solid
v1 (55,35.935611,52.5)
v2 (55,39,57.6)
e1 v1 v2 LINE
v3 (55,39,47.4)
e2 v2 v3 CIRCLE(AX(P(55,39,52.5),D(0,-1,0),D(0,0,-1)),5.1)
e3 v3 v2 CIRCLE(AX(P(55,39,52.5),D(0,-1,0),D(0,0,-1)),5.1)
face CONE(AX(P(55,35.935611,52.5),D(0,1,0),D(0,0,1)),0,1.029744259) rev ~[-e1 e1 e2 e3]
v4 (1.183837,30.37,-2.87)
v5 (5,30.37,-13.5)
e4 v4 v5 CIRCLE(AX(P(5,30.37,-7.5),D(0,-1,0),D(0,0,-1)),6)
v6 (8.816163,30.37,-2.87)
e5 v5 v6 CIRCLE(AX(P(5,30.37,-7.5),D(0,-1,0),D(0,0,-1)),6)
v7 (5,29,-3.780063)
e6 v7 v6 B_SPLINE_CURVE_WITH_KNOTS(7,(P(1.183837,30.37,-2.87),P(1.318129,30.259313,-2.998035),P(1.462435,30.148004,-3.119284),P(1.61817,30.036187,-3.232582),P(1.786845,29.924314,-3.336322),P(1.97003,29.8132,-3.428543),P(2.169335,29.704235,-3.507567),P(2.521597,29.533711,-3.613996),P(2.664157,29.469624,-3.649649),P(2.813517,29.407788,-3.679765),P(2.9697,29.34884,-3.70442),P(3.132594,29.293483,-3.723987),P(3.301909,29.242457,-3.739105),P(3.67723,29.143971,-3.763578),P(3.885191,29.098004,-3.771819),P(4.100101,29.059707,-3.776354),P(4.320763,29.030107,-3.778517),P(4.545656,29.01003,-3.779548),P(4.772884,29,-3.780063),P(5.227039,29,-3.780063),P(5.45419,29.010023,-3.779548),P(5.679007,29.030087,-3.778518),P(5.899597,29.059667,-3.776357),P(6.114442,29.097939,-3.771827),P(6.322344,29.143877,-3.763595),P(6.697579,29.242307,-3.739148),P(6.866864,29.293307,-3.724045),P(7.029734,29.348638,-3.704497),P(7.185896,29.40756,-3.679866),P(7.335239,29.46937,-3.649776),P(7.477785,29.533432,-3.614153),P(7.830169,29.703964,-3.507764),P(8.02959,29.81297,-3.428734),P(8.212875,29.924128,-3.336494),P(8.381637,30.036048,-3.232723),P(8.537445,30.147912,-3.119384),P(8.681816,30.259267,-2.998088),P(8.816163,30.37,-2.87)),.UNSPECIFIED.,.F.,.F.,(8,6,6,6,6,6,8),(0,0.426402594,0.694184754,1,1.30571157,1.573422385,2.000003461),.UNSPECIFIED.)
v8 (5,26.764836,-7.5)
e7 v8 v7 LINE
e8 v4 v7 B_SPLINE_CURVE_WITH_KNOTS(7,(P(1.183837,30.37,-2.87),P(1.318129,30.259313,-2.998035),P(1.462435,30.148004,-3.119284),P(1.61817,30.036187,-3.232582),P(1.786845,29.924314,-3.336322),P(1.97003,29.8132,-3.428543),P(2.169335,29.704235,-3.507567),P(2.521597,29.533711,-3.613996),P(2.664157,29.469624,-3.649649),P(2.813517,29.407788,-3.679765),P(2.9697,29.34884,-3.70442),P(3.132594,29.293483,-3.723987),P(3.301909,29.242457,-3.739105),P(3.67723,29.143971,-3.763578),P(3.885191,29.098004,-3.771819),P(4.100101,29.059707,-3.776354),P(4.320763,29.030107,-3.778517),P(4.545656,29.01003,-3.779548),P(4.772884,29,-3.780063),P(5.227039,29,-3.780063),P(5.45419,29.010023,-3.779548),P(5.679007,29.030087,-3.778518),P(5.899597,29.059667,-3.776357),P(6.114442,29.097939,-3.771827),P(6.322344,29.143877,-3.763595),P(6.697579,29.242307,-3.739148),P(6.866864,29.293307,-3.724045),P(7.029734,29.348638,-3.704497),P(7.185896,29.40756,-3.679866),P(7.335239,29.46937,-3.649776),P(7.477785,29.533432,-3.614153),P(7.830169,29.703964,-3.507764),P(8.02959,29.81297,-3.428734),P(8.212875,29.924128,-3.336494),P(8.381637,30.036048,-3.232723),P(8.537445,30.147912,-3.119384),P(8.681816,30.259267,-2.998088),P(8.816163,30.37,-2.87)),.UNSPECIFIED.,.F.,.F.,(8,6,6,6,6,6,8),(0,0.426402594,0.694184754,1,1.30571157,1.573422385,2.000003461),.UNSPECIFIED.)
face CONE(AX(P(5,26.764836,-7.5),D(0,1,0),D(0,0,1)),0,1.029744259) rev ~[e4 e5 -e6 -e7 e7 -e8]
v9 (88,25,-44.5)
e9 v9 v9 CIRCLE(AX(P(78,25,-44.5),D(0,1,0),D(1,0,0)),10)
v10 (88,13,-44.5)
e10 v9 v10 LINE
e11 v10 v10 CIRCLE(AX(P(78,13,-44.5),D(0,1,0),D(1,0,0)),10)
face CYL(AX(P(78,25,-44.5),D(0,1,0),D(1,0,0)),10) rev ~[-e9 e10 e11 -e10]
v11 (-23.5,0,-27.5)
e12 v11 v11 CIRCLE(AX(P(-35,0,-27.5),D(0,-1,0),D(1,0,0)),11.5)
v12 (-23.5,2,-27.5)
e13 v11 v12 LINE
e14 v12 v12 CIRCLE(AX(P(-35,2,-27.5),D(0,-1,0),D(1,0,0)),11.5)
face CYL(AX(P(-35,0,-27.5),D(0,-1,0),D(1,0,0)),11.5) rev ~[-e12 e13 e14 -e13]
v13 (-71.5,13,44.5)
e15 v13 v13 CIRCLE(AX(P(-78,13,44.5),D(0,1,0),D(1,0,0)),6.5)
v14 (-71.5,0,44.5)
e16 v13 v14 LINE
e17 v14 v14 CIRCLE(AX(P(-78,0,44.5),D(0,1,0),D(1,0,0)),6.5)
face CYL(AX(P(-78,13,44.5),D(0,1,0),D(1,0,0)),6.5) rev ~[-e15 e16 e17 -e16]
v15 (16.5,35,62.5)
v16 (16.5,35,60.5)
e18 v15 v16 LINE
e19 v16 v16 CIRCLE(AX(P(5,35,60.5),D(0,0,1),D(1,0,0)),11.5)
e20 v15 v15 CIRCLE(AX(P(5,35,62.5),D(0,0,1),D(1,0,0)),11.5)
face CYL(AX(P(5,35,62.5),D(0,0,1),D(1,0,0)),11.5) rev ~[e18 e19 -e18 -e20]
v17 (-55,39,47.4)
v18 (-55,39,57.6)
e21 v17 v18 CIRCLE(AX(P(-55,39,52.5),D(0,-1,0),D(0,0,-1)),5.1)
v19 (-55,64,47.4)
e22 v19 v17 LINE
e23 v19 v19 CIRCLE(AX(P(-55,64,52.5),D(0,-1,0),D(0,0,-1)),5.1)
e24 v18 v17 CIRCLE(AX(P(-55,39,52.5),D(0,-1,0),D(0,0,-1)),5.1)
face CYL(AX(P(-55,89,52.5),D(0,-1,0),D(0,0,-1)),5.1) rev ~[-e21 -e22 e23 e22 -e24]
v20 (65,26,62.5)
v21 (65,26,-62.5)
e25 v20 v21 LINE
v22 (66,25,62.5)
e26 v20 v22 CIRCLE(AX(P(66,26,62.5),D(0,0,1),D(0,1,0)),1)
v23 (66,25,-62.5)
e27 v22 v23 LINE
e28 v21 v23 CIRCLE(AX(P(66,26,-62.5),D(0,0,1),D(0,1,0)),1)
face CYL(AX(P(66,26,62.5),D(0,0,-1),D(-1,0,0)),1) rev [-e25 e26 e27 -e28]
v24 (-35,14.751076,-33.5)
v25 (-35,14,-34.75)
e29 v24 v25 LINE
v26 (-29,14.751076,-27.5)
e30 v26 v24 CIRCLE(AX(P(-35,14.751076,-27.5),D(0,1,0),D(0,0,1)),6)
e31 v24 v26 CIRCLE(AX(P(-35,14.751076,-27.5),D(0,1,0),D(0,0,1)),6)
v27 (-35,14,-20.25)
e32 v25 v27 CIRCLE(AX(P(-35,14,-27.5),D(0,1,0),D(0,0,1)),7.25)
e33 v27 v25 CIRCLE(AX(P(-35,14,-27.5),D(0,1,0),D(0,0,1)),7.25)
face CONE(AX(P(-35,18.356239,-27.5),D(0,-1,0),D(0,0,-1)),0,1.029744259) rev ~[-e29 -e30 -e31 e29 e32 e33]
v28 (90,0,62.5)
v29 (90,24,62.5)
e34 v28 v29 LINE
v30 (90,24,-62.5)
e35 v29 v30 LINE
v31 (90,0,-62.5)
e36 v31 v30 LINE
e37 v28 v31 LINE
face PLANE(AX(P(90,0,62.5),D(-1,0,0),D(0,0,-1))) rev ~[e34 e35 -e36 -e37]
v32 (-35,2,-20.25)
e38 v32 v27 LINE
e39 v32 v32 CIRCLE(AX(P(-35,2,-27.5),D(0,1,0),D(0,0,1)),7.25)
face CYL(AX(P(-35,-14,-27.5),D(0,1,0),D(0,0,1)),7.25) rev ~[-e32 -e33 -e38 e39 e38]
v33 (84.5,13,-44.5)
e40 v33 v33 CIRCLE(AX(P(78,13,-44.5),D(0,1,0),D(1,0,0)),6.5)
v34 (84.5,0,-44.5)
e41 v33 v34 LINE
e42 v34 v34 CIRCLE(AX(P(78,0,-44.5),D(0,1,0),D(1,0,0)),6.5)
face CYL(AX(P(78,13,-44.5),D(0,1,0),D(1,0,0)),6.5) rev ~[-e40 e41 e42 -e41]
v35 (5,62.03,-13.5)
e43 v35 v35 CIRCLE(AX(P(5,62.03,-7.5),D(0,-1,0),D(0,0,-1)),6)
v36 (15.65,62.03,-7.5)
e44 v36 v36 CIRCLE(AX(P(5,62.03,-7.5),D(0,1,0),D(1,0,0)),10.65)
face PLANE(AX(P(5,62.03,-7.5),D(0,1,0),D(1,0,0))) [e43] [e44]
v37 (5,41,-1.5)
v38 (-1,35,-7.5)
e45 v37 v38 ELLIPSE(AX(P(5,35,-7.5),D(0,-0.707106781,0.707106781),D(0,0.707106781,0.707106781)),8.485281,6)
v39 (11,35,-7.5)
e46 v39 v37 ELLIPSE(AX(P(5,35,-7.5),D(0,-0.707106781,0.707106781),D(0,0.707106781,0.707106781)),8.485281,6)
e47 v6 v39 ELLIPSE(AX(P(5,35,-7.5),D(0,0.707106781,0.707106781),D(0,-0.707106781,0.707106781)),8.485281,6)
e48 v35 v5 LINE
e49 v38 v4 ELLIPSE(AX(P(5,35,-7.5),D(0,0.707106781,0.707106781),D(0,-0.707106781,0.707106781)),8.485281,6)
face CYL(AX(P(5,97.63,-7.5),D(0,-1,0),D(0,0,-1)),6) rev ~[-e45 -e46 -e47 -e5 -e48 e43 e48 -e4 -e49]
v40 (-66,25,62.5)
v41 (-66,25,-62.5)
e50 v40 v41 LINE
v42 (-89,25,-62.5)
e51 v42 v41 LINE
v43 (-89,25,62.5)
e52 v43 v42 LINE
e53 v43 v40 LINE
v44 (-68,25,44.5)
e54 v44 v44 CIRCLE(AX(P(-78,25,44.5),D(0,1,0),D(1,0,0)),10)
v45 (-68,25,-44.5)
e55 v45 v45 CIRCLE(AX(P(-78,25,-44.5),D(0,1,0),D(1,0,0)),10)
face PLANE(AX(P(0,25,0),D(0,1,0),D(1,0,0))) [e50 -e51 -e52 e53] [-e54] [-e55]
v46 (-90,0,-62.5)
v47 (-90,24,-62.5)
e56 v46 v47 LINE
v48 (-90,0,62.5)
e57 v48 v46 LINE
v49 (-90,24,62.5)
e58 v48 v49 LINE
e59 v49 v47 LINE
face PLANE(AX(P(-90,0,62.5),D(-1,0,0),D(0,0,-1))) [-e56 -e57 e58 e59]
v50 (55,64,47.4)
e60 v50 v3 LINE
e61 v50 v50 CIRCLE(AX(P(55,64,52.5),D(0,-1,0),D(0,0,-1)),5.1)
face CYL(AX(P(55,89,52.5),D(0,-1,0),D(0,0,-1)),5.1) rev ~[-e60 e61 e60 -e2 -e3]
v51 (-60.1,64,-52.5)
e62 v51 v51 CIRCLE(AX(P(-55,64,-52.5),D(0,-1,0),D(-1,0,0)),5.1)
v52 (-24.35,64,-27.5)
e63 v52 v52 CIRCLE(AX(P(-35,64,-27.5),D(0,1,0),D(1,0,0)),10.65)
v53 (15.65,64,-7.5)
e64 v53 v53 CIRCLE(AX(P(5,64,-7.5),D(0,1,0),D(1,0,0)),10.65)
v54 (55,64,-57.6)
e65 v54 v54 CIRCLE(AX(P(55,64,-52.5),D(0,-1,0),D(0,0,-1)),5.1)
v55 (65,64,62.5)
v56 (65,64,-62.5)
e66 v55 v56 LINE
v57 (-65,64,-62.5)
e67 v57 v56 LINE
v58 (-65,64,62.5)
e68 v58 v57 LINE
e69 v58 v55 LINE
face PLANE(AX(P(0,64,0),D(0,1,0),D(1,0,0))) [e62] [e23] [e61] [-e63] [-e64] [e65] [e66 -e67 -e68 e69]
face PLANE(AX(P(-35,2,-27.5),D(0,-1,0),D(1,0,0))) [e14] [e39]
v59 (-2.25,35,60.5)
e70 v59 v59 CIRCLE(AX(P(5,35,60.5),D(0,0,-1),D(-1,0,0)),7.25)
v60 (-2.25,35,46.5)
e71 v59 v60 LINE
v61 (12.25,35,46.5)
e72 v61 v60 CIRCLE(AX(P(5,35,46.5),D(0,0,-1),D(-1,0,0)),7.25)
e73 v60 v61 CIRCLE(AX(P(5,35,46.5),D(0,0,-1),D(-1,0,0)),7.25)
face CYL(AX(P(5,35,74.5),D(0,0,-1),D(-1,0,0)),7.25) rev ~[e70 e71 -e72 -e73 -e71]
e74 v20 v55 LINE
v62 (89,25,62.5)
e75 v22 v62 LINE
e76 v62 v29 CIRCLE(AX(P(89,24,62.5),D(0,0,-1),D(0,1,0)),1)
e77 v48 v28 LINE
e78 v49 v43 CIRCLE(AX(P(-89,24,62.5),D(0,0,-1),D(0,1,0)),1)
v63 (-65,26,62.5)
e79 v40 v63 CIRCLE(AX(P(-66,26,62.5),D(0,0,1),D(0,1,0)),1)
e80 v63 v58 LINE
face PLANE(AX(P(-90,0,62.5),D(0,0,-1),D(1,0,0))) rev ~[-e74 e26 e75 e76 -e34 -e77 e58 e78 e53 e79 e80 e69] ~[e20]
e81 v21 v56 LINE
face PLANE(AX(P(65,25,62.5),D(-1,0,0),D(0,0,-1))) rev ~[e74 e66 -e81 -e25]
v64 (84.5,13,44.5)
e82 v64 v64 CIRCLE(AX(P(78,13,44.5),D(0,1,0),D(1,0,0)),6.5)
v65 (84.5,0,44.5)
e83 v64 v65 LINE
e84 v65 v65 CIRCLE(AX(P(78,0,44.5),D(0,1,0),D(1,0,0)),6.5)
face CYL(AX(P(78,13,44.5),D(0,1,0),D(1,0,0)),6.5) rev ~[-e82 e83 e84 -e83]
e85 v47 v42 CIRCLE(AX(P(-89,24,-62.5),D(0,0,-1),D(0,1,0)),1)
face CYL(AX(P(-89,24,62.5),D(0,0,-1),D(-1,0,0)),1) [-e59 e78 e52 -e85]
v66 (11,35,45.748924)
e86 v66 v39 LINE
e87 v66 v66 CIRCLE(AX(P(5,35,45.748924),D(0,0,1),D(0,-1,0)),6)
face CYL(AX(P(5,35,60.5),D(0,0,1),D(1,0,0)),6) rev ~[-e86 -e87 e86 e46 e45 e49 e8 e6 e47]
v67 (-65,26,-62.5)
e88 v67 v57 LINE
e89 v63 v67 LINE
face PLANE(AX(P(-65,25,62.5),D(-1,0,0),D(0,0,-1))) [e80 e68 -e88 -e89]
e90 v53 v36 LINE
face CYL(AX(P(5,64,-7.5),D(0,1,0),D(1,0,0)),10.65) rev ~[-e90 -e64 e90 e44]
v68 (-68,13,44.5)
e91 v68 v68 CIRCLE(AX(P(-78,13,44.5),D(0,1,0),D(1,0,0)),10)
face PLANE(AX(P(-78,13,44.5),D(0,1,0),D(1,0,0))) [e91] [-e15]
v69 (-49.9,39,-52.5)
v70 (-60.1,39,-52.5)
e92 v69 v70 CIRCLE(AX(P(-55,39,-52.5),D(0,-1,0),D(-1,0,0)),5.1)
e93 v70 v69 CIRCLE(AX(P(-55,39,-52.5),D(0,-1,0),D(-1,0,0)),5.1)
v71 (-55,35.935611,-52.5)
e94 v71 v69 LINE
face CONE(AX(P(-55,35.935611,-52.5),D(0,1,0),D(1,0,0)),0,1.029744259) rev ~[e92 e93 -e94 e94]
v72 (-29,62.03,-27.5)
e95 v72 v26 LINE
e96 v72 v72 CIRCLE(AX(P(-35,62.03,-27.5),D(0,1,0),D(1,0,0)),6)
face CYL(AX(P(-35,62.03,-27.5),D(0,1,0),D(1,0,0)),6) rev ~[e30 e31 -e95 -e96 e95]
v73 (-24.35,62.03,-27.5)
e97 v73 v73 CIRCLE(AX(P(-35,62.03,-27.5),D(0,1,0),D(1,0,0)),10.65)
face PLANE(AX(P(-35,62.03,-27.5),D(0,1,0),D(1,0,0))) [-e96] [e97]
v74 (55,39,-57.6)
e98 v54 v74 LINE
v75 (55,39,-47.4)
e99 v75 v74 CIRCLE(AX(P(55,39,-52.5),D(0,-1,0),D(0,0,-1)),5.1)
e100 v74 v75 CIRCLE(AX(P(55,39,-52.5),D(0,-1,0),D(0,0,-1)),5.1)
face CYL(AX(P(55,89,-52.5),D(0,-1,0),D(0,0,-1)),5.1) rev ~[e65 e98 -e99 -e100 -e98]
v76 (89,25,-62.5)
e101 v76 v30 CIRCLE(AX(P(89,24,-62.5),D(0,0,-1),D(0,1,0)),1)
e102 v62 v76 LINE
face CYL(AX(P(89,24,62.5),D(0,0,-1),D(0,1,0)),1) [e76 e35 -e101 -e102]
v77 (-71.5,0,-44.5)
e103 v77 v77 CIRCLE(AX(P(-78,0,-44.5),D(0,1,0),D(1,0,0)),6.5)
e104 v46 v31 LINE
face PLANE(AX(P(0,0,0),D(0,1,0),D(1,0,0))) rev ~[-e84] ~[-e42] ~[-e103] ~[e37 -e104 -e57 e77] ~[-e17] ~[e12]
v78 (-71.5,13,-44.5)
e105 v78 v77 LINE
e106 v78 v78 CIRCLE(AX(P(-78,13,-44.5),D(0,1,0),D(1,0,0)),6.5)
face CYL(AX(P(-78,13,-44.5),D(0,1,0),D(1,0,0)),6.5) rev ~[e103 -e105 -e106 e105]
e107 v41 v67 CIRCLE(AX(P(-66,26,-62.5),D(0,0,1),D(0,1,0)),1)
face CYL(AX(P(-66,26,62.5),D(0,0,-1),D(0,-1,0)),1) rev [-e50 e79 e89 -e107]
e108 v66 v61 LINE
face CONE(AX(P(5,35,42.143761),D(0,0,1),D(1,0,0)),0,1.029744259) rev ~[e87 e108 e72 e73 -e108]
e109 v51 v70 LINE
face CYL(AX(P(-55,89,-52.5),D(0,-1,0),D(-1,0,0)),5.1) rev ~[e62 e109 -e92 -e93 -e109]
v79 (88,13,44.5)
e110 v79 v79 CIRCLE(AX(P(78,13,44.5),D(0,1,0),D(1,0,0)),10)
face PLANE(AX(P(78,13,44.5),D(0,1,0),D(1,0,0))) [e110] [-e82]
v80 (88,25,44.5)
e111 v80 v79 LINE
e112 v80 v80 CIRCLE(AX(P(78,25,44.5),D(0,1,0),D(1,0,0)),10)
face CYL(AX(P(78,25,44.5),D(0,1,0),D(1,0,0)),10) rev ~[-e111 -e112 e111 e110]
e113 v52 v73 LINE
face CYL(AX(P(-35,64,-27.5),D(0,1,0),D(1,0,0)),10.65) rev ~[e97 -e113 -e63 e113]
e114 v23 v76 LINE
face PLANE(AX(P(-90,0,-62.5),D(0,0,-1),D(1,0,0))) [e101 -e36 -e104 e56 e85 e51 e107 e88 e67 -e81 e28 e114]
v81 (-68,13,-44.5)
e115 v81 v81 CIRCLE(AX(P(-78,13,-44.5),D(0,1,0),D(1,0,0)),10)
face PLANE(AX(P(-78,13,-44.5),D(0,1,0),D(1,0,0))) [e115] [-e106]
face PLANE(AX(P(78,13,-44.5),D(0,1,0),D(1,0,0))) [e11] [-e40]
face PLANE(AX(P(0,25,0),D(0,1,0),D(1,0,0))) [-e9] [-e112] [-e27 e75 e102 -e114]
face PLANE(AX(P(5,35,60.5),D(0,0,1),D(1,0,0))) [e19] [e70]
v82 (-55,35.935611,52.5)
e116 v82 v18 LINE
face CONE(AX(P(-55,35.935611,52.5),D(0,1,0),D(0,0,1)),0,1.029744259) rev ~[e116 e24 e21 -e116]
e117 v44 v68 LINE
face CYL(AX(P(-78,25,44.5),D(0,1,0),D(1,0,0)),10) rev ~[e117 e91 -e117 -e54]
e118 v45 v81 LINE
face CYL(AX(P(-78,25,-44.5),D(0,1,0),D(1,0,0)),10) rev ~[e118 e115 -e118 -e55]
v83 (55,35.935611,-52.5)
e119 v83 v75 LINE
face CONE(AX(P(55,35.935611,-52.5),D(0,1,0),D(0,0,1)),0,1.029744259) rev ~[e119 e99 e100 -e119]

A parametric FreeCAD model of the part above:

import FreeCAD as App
import Part
import Sketcher
Q = App.Units.Quantity


def edges_at(feature, points):
    """Names of the edges that pass closest to the given points."""
    edges = feature.Shape.Edges
    near = lambda p: min(range(len(edges)), key=lambda i: edges[i].distToShape(Part.Vertex(*p))[0])
    return sorted({f"Edge{near(p) + 1}" for p in points})

doc = App.newDocument("Part")
body = doc.addObject("PartDesign::Body", "Body")

# Sketch on XZ plane
sketch1 = body.newObject("Sketcher::SketchObject", "Sketch")
sketch1.AttachmentSupport = (doc.getObject("XZ_Plane"), [""])
sketch1.MapMode = "FlatFace"
sketch1.addGeometry([
    Part.LineSegment(App.Vector(-90, -62, 0), App.Vector(-90, 62, 0)),
    Part.LineSegment(App.Vector(-90, 62, 0), App.Vector(90, 62, 0)),
    Part.LineSegment(App.Vector(90, 62, 0), App.Vector(90, -62, 0)),
    Part.LineSegment(App.Vector(90, -62, 0), App.Vector(-90, -62, 0)),
], False)
sketch1.addConstraint([
    Sketcher.Constraint("Coincident", 0, 2, 1, 1),
    Sketcher.Constraint("Coincident", 1, 2, 2, 1),
    Sketcher.Constraint("Coincident", 2, 2, 3, 1),
    Sketcher.Constraint("Coincident", 3, 2, 0, 1),
    Sketcher.Constraint("Vertical", 0),
    Sketcher.Constraint("Horizontal", 1),
    Sketcher.Constraint("Vertical", 2),
    Sketcher.Constraint("Horizontal", 3),
    Sketcher.Constraint("Symmetric", 0, 2, 2, 2, -1, 1),
    Sketcher.Constraint("DistanceX", 1, 1, 1, 2, Q("180 mm")),
    Sketcher.Constraint("DistanceY", 0, 1, 0, 2, Q("125 mm")),
])
pad1 = body.newObject("PartDesign::Pad", "Pad")
pad1.Profile = sketch1
pad1.Length = 25
pad1.Reversed = True

# Sketch on XZ plane
sketch2 = body.newObject("Sketcher::SketchObject", "Sketch001")
sketch2.AttachmentSupport = (doc.getObject("XZ_Plane"), [""])
sketch2.MapMode = "FlatFace"
sketch2.AttachmentOffset = App.Placement(App.Vector(0, 0, -25), App.Rotation())
sketch2.addGeometry([
    Part.LineSegment(App.Vector(-65, -62, 0), App.Vector(-65, 62, 0)),
    Part.LineSegment(App.Vector(-65, 62, 0), App.Vector(65, 62, 0)),
    Part.LineSegment(App.Vector(65, 62, 0), App.Vector(65, -62, 0)),
    Part.LineSegment(App.Vector(65, -62, 0), App.Vector(-65, -62, 0)),
], False)
sketch2.addConstraint([
    Sketcher.Constraint("Coincident", 0, 2, 1, 1),
    Sketcher.Constraint("Coincident", 1, 2, 2, 1),
    Sketcher.Constraint("Coincident", 2, 2, 3, 1),
    Sketcher.Constraint("Coincident", 3, 2, 0, 1),
    Sketcher.Constraint("Vertical", 0),
    Sketcher.Constraint("Horizontal", 1),
    Sketcher.Constraint("Vertical", 2),
    Sketcher.Constraint("Horizontal", 3),
    Sketcher.Constraint("Symmetric", 0, 2, 2, 2, -1, 1),
    Sketcher.Constraint("DistanceX", 1, 1, 1, 2, Q("130 mm")),
    Sketcher.Constraint("DistanceY", 0, 1, 0, 2, Q("125 mm")),
])
pad2 = body.newObject("PartDesign::Pad", "Pad001")
pad2.Profile = sketch2
pad2.Length = 39
pad2.Reversed = True

# Sketch on XZ plane
sketch3 = body.newObject("Sketcher::SketchObject", "Sketch002")
sketch3.AttachmentSupport = (doc.getObject("XZ_Plane"), [""])
sketch3.MapMode = "FlatFace"
sketch3.AttachmentOffset = App.Placement(App.Vector(0, 0, -25), App.Rotation())
sketch3.addGeometry(Part.Circle(App.Vector(-78, -44, 0), App.Vector(0, 0, 1), 10), False)
sketch3.addConstraint([
    Sketcher.Constraint("Diameter", 0, Q("20 mm")),
    Sketcher.Constraint("DistanceX", 0, 3, -1, 1, Q("78 mm")),
    Sketcher.Constraint("DistanceY", 0, 3, -1, 1, Q("44.5 mm")),
])
pocket1 = body.newObject("PartDesign::Pocket", "Pocket")
pocket1.Profile = sketch3
pocket1.Length = 12
pocket1.Reversed = True

# Sketch on XZ plane
sketch4 = body.newObject("Sketcher::SketchObject", "Sketch003")
sketch4.AttachmentSupport = (doc.getObject("XZ_Plane"), [""])
sketch4.MapMode = "FlatFace"
sketch4.AttachmentOffset = App.Placement(App.Vector(0, 0, -25), App.Rotation())
sketch4.addGeometry(Part.Circle(App.Vector(78, -44, 0), App.Vector(0, 0, 1), 10), False)
sketch4.addConstraint([
    Sketcher.Constraint("Diameter", 0, Q("20 mm")),
    Sketcher.Constraint("DistanceX", -1, 1, 0, 3, Q("78 mm")),
    Sketcher.Constraint("DistanceY", 0, 3, -1, 1, Q("44.5 mm")),
])
pocket2 = body.newObject("PartDesign::Pocket", "Pocket001")
pocket2.Profile = sketch4
pocket2.Length = 12
pocket2.Reversed = True

# Sketch on XZ plane
sketch5 = body.newObject("Sketcher::SketchObject", "Sketch004")
sketch5.AttachmentSupport = (doc.getObject("XZ_Plane"), [""])
sketch5.MapMode = "FlatFace"
sketch5.AttachmentOffset = App.Placement(App.Vector(0, 0, -25), App.Rotation())
sketch5.addGeometry(Part.Circle(App.Vector(-78, 44, 0), App.Vector(0, 0, 1), 10), False)
sketch5.addConstraint([
    Sketcher.Constraint("Diameter", 0, Q("20 mm")),
    Sketcher.Constraint("DistanceX", 0, 3, -1, 1, Q("78 mm")),
    Sketcher.Constraint("DistanceY", -1, 1, 0, 3, Q("44.5 mm")),
])
pocket3 = body.newObject("PartDesign::Pocket", "Pocket002")
pocket3.Profile = sketch5
pocket3.Length = 12
pocket3.Reversed = True

# Sketch on XZ plane
sketch6 = body.newObject("Sketcher::SketchObject", "Sketch005")
sketch6.AttachmentSupport = (doc.getObject("XZ_Plane"), [""])
sketch6.MapMode = "FlatFace"
sketch6.AttachmentOffset = App.Placement(App.Vector(0, 0, -25), App.Rotation())
sketch6.addGeometry(Part.Circle(App.Vector(78, 44, 0), App.Vector(0, 0, 1), 10), False)
sketch6.addConstraint([
    Sketcher.Constraint("Diameter", 0, Q("20 mm")),
    Sketcher.Constraint("DistanceX", -1, 1, 0, 3, Q("78 mm")),
    Sketcher.Constraint("DistanceY", -1, 1, 0, 3, Q("44.5 mm")),
])
pocket4 = body.newObject("PartDesign::Pocket", "Pocket003")
pocket4.Profile = sketch6
pocket4.Length = 12
pocket4.Reversed = True

# Sketch on XZ plane
sketch7 = body.newObject("Sketcher::SketchObject", "Sketch006")
sketch7.AttachmentSupport = (doc.getObject("XZ_Plane"), [""])
sketch7.MapMode = "FlatFace"
sketch7.AttachmentOffset = App.Placement(App.Vector(0, 0, -13), App.Rotation())
sketch7.addGeometry(Part.Circle(App.Vector(-78, 44, 0), App.Vector(0, 0, 1), 6), False)
sketch7.addConstraint([
    Sketcher.Constraint("Diameter", 0, Q("13 mm")),
    Sketcher.Constraint("DistanceX", 0, 3, -1, 1, Q("78 mm")),
    Sketcher.Constraint("DistanceY", -1, 1, 0, 3, Q("44.5 mm")),
])
pocket5 = body.newObject("PartDesign::Pocket", "Pocket004")
pocket5.Profile = sketch7
pocket5.Length = 13
pocket5.Reversed = True

# Sketch on XZ plane
sketch8 = body.newObject("Sketcher::SketchObject", "Sketch007")
sketch8.AttachmentSupport = (doc.getObject("XZ_Plane"), [""])
sketch8.MapMode = "FlatFace"
sketch8.AttachmentOffset = App.Placement(App.Vector(0, 0, -13), App.Rotation())
sketch8.addGeometry(Part.Circle(App.Vector(-78, -44, 0), App.Vector(0, 0, 1), 6), False)
sketch8.addConstraint([
    Sketcher.Constraint("Diameter", 0, Q("13 mm")),
    Sketcher.Constraint("DistanceX", 0, 3, -1, 1, Q("78 mm")),
    Sketcher.Constraint("DistanceY", 0, 3, -1, 1, Q("44.5 mm")),
])
pocket6 = body.newObject("PartDesign::Pocket", "Pocket005")
pocket6.Profile = sketch8
pocket6.Length = 13
pocket6.Reversed = True

# Sketch on XZ plane
sketch9 = body.newObject("Sketcher::SketchObject", "Sketch008")
sketch9.AttachmentSupport = (doc.getObject("XZ_Plane"), [""])
sketch9.MapMode = "FlatFace"
sketch9.AttachmentOffset = App.Placement(App.Vector(0, 0, -13), App.Rotation())
sketch9.addGeometry(Part.Circle(App.Vector(78, -44, 0), App.Vector(0, 0, 1), 6), False)
sketch9.addConstraint([
    Sketcher.Constraint("Diameter", 0, Q("13 mm")),
    Sketcher.Constraint("DistanceX", -1, 1, 0, 3, Q("78 mm")),
    Sketcher.Constraint("DistanceY", 0, 3, -1, 1, Q("44.5 mm")),
])
pocket7 = body.newObject("PartDesign::Pocket", "Pocket006")
pocket7.Profile = sketch9
pocket7.Length = 13
pocket7.Reversed = True

# Sketch on XZ plane
sketch10 = body.newObject("Sketcher::SketchObject", "Sketch009")
sketch10.AttachmentSupport = (doc.getObject("XZ_Plane"), [""])
sketch10.MapMode = "FlatFace"
sketch10.AttachmentOffset = App.Placement(App.Vector(0, 0, -13), App.Rotation())
sketch10.addGeometry(Part.Circle(App.Vector(78, 44, 0), App.Vector(0, 0, 1), 6), False)
sketch10.addConstraint([
    Sketcher.Constraint("Diameter", 0, Q("13 mm")),
    Sketcher.Constraint("DistanceX", -1, 1, 0, 3, Q("78 mm")),
    Sketcher.Constraint("DistanceY", -1, 1, 0, 3, Q("44.5 mm")),
])
pocket8 = body.newObject("PartDesign::Pocket", "Pocket007")
pocket8.Profile = sketch10
pocket8.Length = 13
pocket8.Reversed = True

# Sketch on XZ plane
sketch11 = body.newObject("Sketcher::SketchObject", "Sketch010")
sketch11.AttachmentSupport = (doc.getObject("XZ_Plane"), [""])
sketch11.MapMode = "FlatFace"
sketch11.AttachmentOffset = App.Placement(App.Vector(0, 0, -64), App.Rotation())
sketch11.addGeometry(Part.Circle(App.Vector(-55, -52, 0), App.Vector(0, 0, 1), 5), False)
sketch11.addConstraint([
    Sketcher.Constraint("Diameter", 0, Q("10.2 mm")),
    Sketcher.Constraint("DistanceX", 0, 3, -1, 1, Q("55 mm")),
    Sketcher.Constraint("DistanceY", 0, 3, -1, 1, Q("52.5 mm")),
])
doc.recompute()
hole = body.newObject("PartDesign::Hole", "Hole")
hole.Profile = sketch11
hole.ThreadType = "None"
hole.Diameter = 10.2
hole.DepthType = "Dimension"
hole.Depth = 25
hole.DrillPoint = "Angled"
hole.DrillPointAngle = 118
hole.Reversed = True

# Sketch on XZ plane
sketch12 = body.newObject("Sketcher::SketchObject", "Sketch011")
sketch12.AttachmentSupport = (doc.getObject("XZ_Plane"), [""])
sketch12.MapMode = "FlatFace"
sketch12.AttachmentOffset = App.Placement(App.Vector(0, 0, -64), App.Rotation())
sketch12.addGeometry(Part.Circle(App.Vector(55, -52, 0), App.Vector(0, 0, 1), 5), False)
sketch12.addConstraint([
    Sketcher.Constraint("Diameter", 0, Q("10.2 mm")),
    Sketcher.Constraint("DistanceX", -1, 1, 0, 3, Q("55 mm")),
    Sketcher.Constraint("DistanceY", 0, 3, -1, 1, Q("52.5 mm")),
])
doc.recompute()
hole2 = body.newObject("PartDesign::Hole", "Hole001")
hole2.Profile = sketch12
hole2.ThreadType = "None"
hole2.Diameter = 10.2
hole2.DepthType = "Dimension"
hole2.Depth = 25
hole2.DrillPoint = "Angled"
hole2.DrillPointAngle = 118
hole2.Reversed = True

# Sketch on XZ plane
sketch13 = body.newObject("Sketcher::SketchObject", "Sketch012")
sketch13.AttachmentSupport = (doc.getObject("XZ_Plane"), [""])
sketch13.MapMode = "FlatFace"
sketch13.AttachmentOffset = App.Placement(App.Vector(0, 0, -64), App.Rotation())
sketch13.addGeometry(Part.Circle(App.Vector(-55, 52, 0), App.Vector(0, 0, 1), 5), False)
sketch13.addConstraint([
    Sketcher.Constraint("Diameter", 0, Q("10.2 mm")),
    Sketcher.Constraint("DistanceX", 0, 3, -1, 1, Q("55 mm")),
    Sketcher.Constraint("DistanceY", -1, 1, 0, 3, Q("52.5 mm")),
])
doc.recompute()
hole3 = body.newObject("PartDesign::Hole", "Hole002")
hole3.Profile = sketch13
hole3.ThreadType = "None"
hole3.Diameter = 10.2
hole3.DepthType = "Dimension"
hole3.Depth = 25
hole3.DrillPoint = "Angled"
hole3.DrillPointAngle = 118
hole3.Reversed = True

# Sketch on XZ plane
sketch14 = body.newObject("Sketcher::SketchObject", "Sketch013")
sketch14.AttachmentSupport = (doc.getObject("XZ_Plane"), [""])
sketch14.MapMode = "FlatFace"
sketch14.AttachmentOffset = App.Placement(App.Vector(0, 0, -64), App.Rotation())
sketch14.addGeometry(Part.Circle(App.Vector(55, 52, 0), App.Vector(0, 0, 1), 5), False)
sketch14.addConstraint([
    Sketcher.Constraint("Diameter", 0, Q("10.2 mm")),
    Sketcher.Constraint("DistanceX", -1, 1, 0, 3, Q("55 mm")),
    Sketcher.Constraint("DistanceY", -1, 1, 0, 3, Q("52.5 mm")),
])
doc.recompute()
hole4 = body.newObject("PartDesign::Hole", "Hole003")
hole4.Profile = sketch14
hole4.ThreadType = "None"
hole4.Diameter = 10.2
hole4.DepthType = "Dimension"
hole4.Depth = 25
hole4.DrillPoint = "Angled"
hole4.DrillPointAngle = 118
hole4.Reversed = True

# Sketch on XZ plane
sketch15 = body.newObject("Sketcher::SketchObject", "Sketch014")
sketch15.AttachmentSupport = (doc.getObject("XZ_Plane"), [""])
sketch15.MapMode = "FlatFace"
sketch15.addGeometry(Part.Circle(App.Vector(-35, -28, 0), App.Vector(0, 0, 1), 11), False)
sketch15.addConstraint([
    Sketcher.Constraint("Diameter", 0, Q("21.3 mm")),
    Sketcher.Constraint("DistanceX", 0, 3, -1, 1, Q("35 mm")),
    Sketcher.Constraint("DistanceY", 0, 3, -1, 1, Q("27.5 mm")),
])
pocket9 = body.newObject("PartDesign::Pocket", "Pocket008")
pocket9.Profile = sketch15
pocket9.Length = 2

# Sketch on XZ plane
sketch16 = body.newObject("Sketcher::SketchObject", "Sketch015")
sketch16.AttachmentSupport = (doc.getObject("XZ_Plane"), [""])
sketch16.MapMode = "FlatFace"
sketch16.AttachmentOffset = App.Placement(App.Vector(0, 0, -64), App.Rotation())
sketch16.addGeometry(Part.Circle(App.Vector(55, -52, 0), App.Vector(0, 0, 1), 5), False)
sketch16.addConstraint([
    Sketcher.Constraint("Diameter", 0, Q("10.2 mm")),
    Sketcher.Constraint("DistanceX", -1, 1, 0, 3, Q("55 mm")),
    Sketcher.Constraint("DistanceY", 0, 3, -1, 1, Q("52.5 mm")),
])
doc.recompute()
hole5 = body.newObject("PartDesign::Hole", "Hole004")
hole5.Profile = sketch16
hole5.ThreadType = "None"
hole5.Diameter = 10.2
hole5.DepthType = "Dimension"
hole5.Depth = 25
hole5.DrillPoint = "Angled"
hole5.DrillPointAngle = 118
hole5.Reversed = True

# Sketch on XZ plane
sketch17 = body.newObject("Sketcher::SketchObject", "Sketch016")
sketch17.AttachmentSupport = (doc.getObject("XZ_Plane"), [""])
sketch17.MapMode = "FlatFace"
sketch17.AttachmentOffset = App.Placement(App.Vector(0, 0, -64), App.Rotation())
sketch17.addGeometry(Part.Circle(App.Vector(-55, 52, 0), App.Vector(0, 0, 1), 5), False)
sketch17.addConstraint([
    Sketcher.Constraint("Diameter", 0, Q("10.2 mm")),
    Sketcher.Constraint("DistanceX", 0, 3, -1, 1, Q("55 mm")),
    Sketcher.Constraint("DistanceY", -1, 1, 0, 3, Q("52.5 mm")),
])
doc.recompute()
hole6 = body.newObject("PartDesign::Hole", "Hole005")
hole6.Profile = sketch17
hole6.ThreadType = "None"
hole6.Diameter = 10.2
hole6.DepthType = "Dimension"
hole6.Depth = 25
hole6.DrillPoint = "Angled"
hole6.DrillPointAngle = 118
hole6.Reversed = True

# Sketch on XZ plane
sketch18 = body.newObject("Sketcher::SketchObject", "Sketch017")
sketch18.AttachmentSupport = (doc.getObject("XZ_Plane"), [""])
sketch18.MapMode = "FlatFace"
sketch18.AttachmentOffset = App.Placement(App.Vector(0, 0, -64), App.Rotation())
sketch18.addGeometry(Part.Circle(App.Vector(55, 52, 0), App.Vector(0, 0, 1), 5), False)
sketch18.addConstraint([
    Sketcher.Constraint("Diameter", 0, Q("10.2 mm")),
    Sketcher.Constraint("DistanceX", -1, 1, 0, 3, Q("55 mm")),
    Sketcher.Constraint("DistanceY", -1, 1, 0, 3, Q("52.5 mm")),
])
doc.recompute()
hole7 = body.newObject("PartDesign::Hole", "Hole006")
hole7.Profile = sketch18
hole7.ThreadType = "None"
hole7.Diameter = 10.2
hole7.DepthType = "Dimension"
hole7.Depth = 25
hole7.DrillPoint = "Angled"
hole7.DrillPointAngle = 118
hole7.Reversed = True
doc.recompute()

fillet = body.newObject("PartDesign::Fillet", "Fillet")
fillet.Base = (hole7, edges_at(hole7, [(-90, 25, 0)]))
fillet.Radius = 1
doc.recompute()

fillet2 = body.newObject("PartDesign::Fillet", "Fillet001")
fillet2.Base = (fillet, edges_at(fillet, [(-65, 25, 0)]))
fillet2.Radius = 1
doc.recompute()

fillet3 = body.newObject("PartDesign::Fillet", "Fillet002")
fillet3.Base = (fillet2, edges_at(fillet2, [(65, 25, 0)]))
fillet3.Radius = 1

# Sketch on XZ plane
sketch19 = body.newObject("Sketcher::SketchObject", "Sketch018")
sketch19.AttachmentSupport = (doc.getObject("XZ_Plane"), [""])
sketch19.MapMode = "FlatFace"
sketch19.AttachmentOffset = App.Placement(App.Vector(0, 0, -64), App.Rotation())
sketch19.addGeometry(Part.Circle(App.Vector(-35, -28, 0), App.Vector(0, 0, 1), 11), False)
sketch19.addConstraint([
    Sketcher.Constraint("Diameter", 0, Q("21.3 mm")),
    Sketcher.Constraint("DistanceX", 0, 3, -1, 1, Q("35 mm")),
    Sketcher.Constraint("DistanceY", 0, 3, -1, 1, Q("27.5 mm")),
])
pocket10 = body.newObject("PartDesign::Pocket", "Pocket009")
pocket10.Profile = sketch19
pocket10.Length = 1.97
pocket10.Reversed = True

# Sketch on XZ plane
sketch20 = body.newObject("Sketcher::SketchObject", "Sketch019")
sketch20.AttachmentSupport = (doc.getObject("XZ_Plane"), [""])
sketch20.MapMode = "FlatFace"
sketch20.addGeometry(Part.Circle(App.Vector(-35, -28, 0), App.Vector(0, 0, 1), 12), False)
sketch20.addConstraint([
    Sketcher.Constraint("Diameter", 0, Q("23 mm")),
    Sketcher.Constraint("DistanceX", 0, 3, -1, 1, Q("35 mm")),
    Sketcher.Constraint("DistanceY", 0, 3, -1, 1, Q("27.5 mm")),
])
pocket11 = body.newObject("PartDesign::Pocket", "Pocket010")
pocket11.Profile = sketch20
pocket11.Length = 2

# Sketch on XZ plane
sketch21 = body.newObject("Sketcher::SketchObject", "Sketch020")
sketch21.AttachmentSupport = (doc.getObject("XZ_Plane"), [""])
sketch21.MapMode = "FlatFace"
sketch21.addGeometry(Part.Circle(App.Vector(-35, -28, 0), App.Vector(0, 0, 1), 7), False)
sketch21.addConstraint([
    Sketcher.Constraint("Diameter", 0, Q("14.5 mm")),
    Sketcher.Constraint("DistanceX", 0, 3, -1, 1, Q("35 mm")),
    Sketcher.Constraint("DistanceY", 0, 3, -1, 1, Q("27.5 mm")),
])
doc.recompute()
hole8 = body.newObject("PartDesign::Hole", "Hole007")
hole8.Profile = sketch21
hole8.ThreadType = "None"
hole8.Diameter = 14.5
hole8.DepthType = "Dimension"
hole8.Depth = 14
hole8.DrillPoint = "Angled"
hole8.DrillPointAngle = 118

# Sketch on XZ plane
sketch22 = body.newObject("Sketcher::SketchObject", "Sketch021")
sketch22.AttachmentSupport = (doc.getObject("XZ_Plane"), [""])
sketch22.MapMode = "FlatFace"
sketch22.AttachmentOffset = App.Placement(App.Vector(0, 0, -62.03), App.Rotation())
sketch22.addGeometry(Part.Circle(App.Vector(-35, -28, 0), App.Vector(0, 0, 1), 6), False)
sketch22.addConstraint([
    Sketcher.Constraint("Diameter", 0, Q("12 mm")),
    Sketcher.Constraint("DistanceX", 0, 3, -1, 1, Q("35 mm")),
    Sketcher.Constraint("DistanceY", 0, 3, -1, 1, Q("27.5 mm")),
])
pocket12 = body.newObject("PartDesign::Pocket", "Pocket011")
pocket12.Profile = sketch22
pocket12.Type = "ThroughAll"
pocket12.Reversed = True

# Sketch on XZ plane
sketch23 = body.newObject("Sketcher::SketchObject", "Sketch022")
sketch23.AttachmentSupport = (doc.getObject("XZ_Plane"), [""])
sketch23.MapMode = "FlatFace"
sketch23.AttachmentOffset = App.Placement(App.Vector(0, 0, -64), App.Rotation())
sketch23.addGeometry(Part.Circle(App.Vector(5, -8, 0), App.Vector(0, 0, 1), 6), False)
sketch23.addConstraint([
    Sketcher.Constraint("Diameter", 0, Q("12 mm")),
    Sketcher.Constraint("DistanceX", -1, 1, 0, 3, Q("5 mm")),
    Sketcher.Constraint("DistanceY", 0, 3, -1, 1, Q("7.5 mm")),
])
doc.recompute()
hole9 = body.newObject("PartDesign::Hole", "Hole008")
hole9.Profile = sketch23
hole9.ThreadType = "None"
hole9.Diameter = 12
hole9.DepthType = "Dimension"
hole9.Depth = 33.63
hole9.DrillPoint = "Angled"
hole9.DrillPointAngle = 118
hole9.Reversed = True

# Sketch on XY plane
sketch24 = body.newObject("Sketcher::SketchObject", "Sketch023")
sketch24.AttachmentSupport = (doc.getObject("XY_Plane"), [""])
sketch24.MapMode = "FlatFace"
sketch24.AttachmentOffset = App.Placement(App.Vector(0, 0, 62.5), App.Rotation())
sketch24.addGeometry(Part.Circle(App.Vector(5, 35, 0), App.Vector(0, 0, 1), 12), False)
sketch24.addConstraint([
    Sketcher.Constraint("Diameter", 0, Q("23 mm")),
    Sketcher.Constraint("DistanceX", -1, 1, 0, 3, Q("5 mm")),
    Sketcher.Constraint("DistanceY", -1, 1, 0, 3, Q("35 mm")),
])
pocket13 = body.newObject("PartDesign::Pocket", "Pocket012")
pocket13.Profile = sketch24
pocket13.Length = 2

# Sketch on XZ plane
sketch25 = body.newObject("Sketcher::SketchObject", "Sketch024")
sketch25.AttachmentSupport = (doc.getObject("XZ_Plane"), [""])
sketch25.MapMode = "FlatFace"
sketch25.AttachmentOffset = App.Placement(App.Vector(0, 0, -64), App.Rotation())
sketch25.addGeometry(Part.Circle(App.Vector(5, -8, 0), App.Vector(0, 0, 1), 11), False)
sketch25.addConstraint([
    Sketcher.Constraint("Diameter", 0, Q("21.3 mm")),
    Sketcher.Constraint("DistanceX", -1, 1, 0, 3, Q("5 mm")),
    Sketcher.Constraint("DistanceY", 0, 3, -1, 1, Q("7.5 mm")),
])
pocket14 = body.newObject("PartDesign::Pocket", "Pocket013")
pocket14.Profile = sketch25
pocket14.Length = 1.97
pocket14.Reversed = True

# Sketch on XY plane
sketch26 = body.newObject("Sketcher::SketchObject", "Sketch025")
sketch26.AttachmentSupport = (doc.getObject("XY_Plane"), [""])
sketch26.MapMode = "FlatFace"
sketch26.AttachmentOffset = App.Placement(App.Vector(0, 0, 60.5), App.Rotation())
sketch26.addGeometry(Part.Circle(App.Vector(5, 35, 0), App.Vector(0, 0, 1), 6), False)
sketch26.addConstraint([
    Sketcher.Constraint("Diameter", 0, Q("12 mm")),
    Sketcher.Constraint("DistanceX", -1, 1, 0, 3, Q("5 mm")),
    Sketcher.Constraint("DistanceY", -1, 1, 0, 3, Q("35 mm")),
])
pocket15 = body.newObject("PartDesign::Pocket", "Pocket014")
pocket15.Profile = sketch26
pocket15.Length = 68

# Sketch on XY plane
sketch27 = body.newObject("Sketcher::SketchObject", "Sketch026")
sketch27.AttachmentSupport = (doc.getObject("XY_Plane"), [""])
sketch27.MapMode = "FlatFace"
sketch27.AttachmentOffset = App.Placement(App.Vector(0, 0, 60.5), App.Rotation())
sketch27.addGeometry(Part.Circle(App.Vector(5, 35, 0), App.Vector(0, 0, 1), 7), False)
sketch27.addConstraint([
    Sketcher.Constraint("Diameter", 0, Q("14.5 mm")),
    Sketcher.Constraint("DistanceX", -1, 1, 0, 3, Q("5 mm")),
    Sketcher.Constraint("DistanceY", -1, 1, 0, 3, Q("35 mm")),
])
doc.recompute()
hole10 = body.newObject("PartDesign::Hole", "Hole009")
hole10.Profile = sketch27
hole10.ThreadType = "None"
hole10.Diameter = 14.5
hole10.DepthType = "Dimension"
hole10.Depth = 14
hole10.DrillPoint = "Angled"
hole10.DrillPointAngle = 118
doc.recompute()

fillet4 = body.newObject("PartDesign::Fillet", "Fillet003")
fillet4.Base = (hole10, edges_at(hole10, [(90, 25, 0)]))
fillet4.Radius = 1

doc.recompute()
